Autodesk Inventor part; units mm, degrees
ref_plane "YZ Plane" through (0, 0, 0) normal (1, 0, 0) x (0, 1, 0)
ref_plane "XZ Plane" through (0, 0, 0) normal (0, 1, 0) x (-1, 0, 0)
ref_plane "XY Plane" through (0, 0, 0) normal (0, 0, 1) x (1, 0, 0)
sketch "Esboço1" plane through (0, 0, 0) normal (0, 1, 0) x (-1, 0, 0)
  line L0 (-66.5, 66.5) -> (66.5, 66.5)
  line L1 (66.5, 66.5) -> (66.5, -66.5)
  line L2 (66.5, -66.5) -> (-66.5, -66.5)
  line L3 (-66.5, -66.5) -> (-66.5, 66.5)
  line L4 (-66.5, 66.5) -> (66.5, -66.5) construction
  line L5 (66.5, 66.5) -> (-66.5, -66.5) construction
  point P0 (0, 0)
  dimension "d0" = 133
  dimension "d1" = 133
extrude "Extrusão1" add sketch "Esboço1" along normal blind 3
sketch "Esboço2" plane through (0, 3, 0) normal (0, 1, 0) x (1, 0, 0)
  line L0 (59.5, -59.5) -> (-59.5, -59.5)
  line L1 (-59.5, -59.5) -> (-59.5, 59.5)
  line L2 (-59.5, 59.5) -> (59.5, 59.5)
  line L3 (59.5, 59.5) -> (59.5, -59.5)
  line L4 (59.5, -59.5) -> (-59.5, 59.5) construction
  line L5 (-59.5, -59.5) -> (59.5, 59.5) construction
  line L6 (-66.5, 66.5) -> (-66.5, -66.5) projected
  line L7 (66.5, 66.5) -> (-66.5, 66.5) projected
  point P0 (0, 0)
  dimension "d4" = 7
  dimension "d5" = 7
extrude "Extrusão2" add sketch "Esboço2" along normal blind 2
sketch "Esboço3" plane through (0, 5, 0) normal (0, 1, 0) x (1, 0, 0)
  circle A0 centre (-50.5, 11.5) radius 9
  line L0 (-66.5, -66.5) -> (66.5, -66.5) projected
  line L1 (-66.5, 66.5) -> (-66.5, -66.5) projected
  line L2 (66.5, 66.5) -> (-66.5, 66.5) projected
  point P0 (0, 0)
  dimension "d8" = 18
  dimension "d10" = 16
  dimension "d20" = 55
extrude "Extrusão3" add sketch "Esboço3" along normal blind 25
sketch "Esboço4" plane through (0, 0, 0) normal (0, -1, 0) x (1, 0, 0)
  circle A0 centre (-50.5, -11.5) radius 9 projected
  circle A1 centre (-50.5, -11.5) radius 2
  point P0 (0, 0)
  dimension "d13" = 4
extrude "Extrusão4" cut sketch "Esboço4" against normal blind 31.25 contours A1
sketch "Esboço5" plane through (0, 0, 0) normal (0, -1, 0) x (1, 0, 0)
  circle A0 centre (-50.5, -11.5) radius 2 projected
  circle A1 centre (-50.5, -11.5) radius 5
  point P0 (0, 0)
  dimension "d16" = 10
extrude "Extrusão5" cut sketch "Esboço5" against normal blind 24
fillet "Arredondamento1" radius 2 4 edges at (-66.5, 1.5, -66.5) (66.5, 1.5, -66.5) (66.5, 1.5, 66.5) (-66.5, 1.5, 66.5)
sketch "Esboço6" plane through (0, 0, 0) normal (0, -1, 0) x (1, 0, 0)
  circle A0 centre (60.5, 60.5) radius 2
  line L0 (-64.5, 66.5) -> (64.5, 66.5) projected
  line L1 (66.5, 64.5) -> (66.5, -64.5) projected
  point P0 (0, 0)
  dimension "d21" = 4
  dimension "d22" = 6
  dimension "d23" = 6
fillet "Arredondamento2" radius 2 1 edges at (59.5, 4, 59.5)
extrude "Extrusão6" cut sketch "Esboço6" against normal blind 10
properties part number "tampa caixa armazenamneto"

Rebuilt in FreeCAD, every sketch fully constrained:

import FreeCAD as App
import Part
import Sketcher


def edges_at(feature, points):
    """Names of the edges that pass closest to the given points."""
    edges = feature.Shape.Edges
    near = lambda p: min(range(len(edges)), key=lambda i: edges[i].distToShape(Part.Vertex(*p))[0])
    return sorted({f"Edge{near(p) + 1}" for p in points})


def add_polygon(sketch, points):
    """Adds a closed chain of lines whose ends are joined by coincident constraints."""
    first, n = sketch.GeometryCount, len(points)
    for a, b in zip(points, points[1:] + points[:1]):
        sketch.addGeometry(Part.LineSegment(App.Vector(*a, 0), App.Vector(*b, 0)), False)
    for i in range(n):
        sketch.addConstraint(Sketcher.Constraint("Coincident", first + i, 2, first + (i + 1) % n, 1))

doc = App.newDocument("Part")
body = doc.addObject("PartDesign::Body", "Body")

# Sketch on XZ plane
sketch1 = body.newObject("Sketcher::SketchObject", "Sketch")
sketch1.AttachmentSupport = (doc.getObject("XZ_Plane"), [""])
sketch1.MapMode = "FlatFace"
add_polygon(sketch1, [(-66, 66), (66, 66), (66, -66), (-66, -66)])  # lines 0-3
sketch1.addConstraint(Sketcher.Constraint("Horizontal", 0))
sketch1.addConstraint(Sketcher.Constraint("Vertical", 1))
sketch1.addConstraint(Sketcher.Constraint("Horizontal", 2))
sketch1.addConstraint(Sketcher.Constraint("Vertical", 3))
sketch1.addConstraint(Sketcher.Constraint("Symmetric", 0, 2, 2, 2, -1, 1))
sketch1.addConstraint(Sketcher.Constraint("Equal", 2, 1))
sketch1.addConstraint(Sketcher.Constraint("DistanceX", 0, 1, 0, 2, 133.0))
pad1 = body.newObject("PartDesign::Pad", "Pad")
pad1.Profile = sketch1
pad1.Length = 3
pad1.Reversed = True

# Sketch on XZ plane
sketch2 = body.newObject("Sketcher::SketchObject", "Sketch001")
sketch2.AttachmentSupport = (doc.getObject("XZ_Plane"), [""])
sketch2.MapMode = "FlatFace"
sketch2.AttachmentOffset = App.Placement(App.Vector(0, 0, -3), App.Rotation())
add_polygon(sketch2, [(-60, 60), (60, 60), (60, -60), (-60, -60)])  # lines 0-3
sketch2.addConstraint(Sketcher.Constraint("Horizontal", 0))
sketch2.addConstraint(Sketcher.Constraint("Vertical", 1))
sketch2.addConstraint(Sketcher.Constraint("Horizontal", 2))
sketch2.addConstraint(Sketcher.Constraint("Vertical", 3))
sketch2.addConstraint(Sketcher.Constraint("Symmetric", 0, 2, 2, 2, -1, 1))
sketch2.addConstraint(Sketcher.Constraint("Equal", 2, 1))
sketch2.addConstraint(Sketcher.Constraint("DistanceX", 0, 1, 0, 2, 119.0))
pad2 = body.newObject("PartDesign::Pad", "Pad001")
pad2.Profile = sketch2
pad2.Length = 2
pad2.Reversed = True

# Sketch on XZ plane
sketch3 = body.newObject("Sketcher::SketchObject", "Sketch002")
sketch3.AttachmentSupport = (doc.getObject("XZ_Plane"), [""])
sketch3.MapMode = "FlatFace"
sketch3.AttachmentOffset = App.Placement(App.Vector(0, 0, -5), App.Rotation())
sketch3.addGeometry(Part.Circle(App.Vector(-50, -12, 0), App.Vector(0, 0, 1), 9), False)
sketch3.addConstraint(Sketcher.Constraint("Diameter", 0, 18.0))
sketch3.addConstraint(Sketcher.Constraint("DistanceX", 0, 3, -1, 1, 50.5))
sketch3.addConstraint(Sketcher.Constraint("DistanceY", 0, 3, -1, 1, 11.5))
pad3 = body.newObject("PartDesign::Pad", "Pad002")
pad3.Profile = sketch3
pad3.Length = 25
pad3.Reversed = True

# Sketch on XZ plane
sketch4 = body.newObject("Sketcher::SketchObject", "Sketch003")
sketch4.AttachmentSupport = (doc.getObject("XZ_Plane"), [""])
sketch4.MapMode = "FlatFace"
sketch4.addGeometry(Part.Circle(App.Vector(-50.5, -11.5, 0), App.Vector(0, 0, 1), 2), False)
sketch4.addConstraint(Sketcher.Constraint("Diameter", 0, 4.0))
sketch4.addConstraint(Sketcher.Constraint("DistanceX", 0, 3, -1, 1, 50.5))
sketch4.addConstraint(Sketcher.Constraint("DistanceY", 0, 3, -1, 1, 11.5))
pocket1 = body.newObject("PartDesign::Pocket", "Pocket")
pocket1.Profile = sketch4
pocket1.Length = 31.25

# Sketch on XZ plane
sketch5 = body.newObject("Sketcher::SketchObject", "Sketch004")
sketch5.AttachmentSupport = (doc.getObject("XZ_Plane"), [""])
sketch5.MapMode = "FlatFace"
sketch5.addGeometry(Part.Circle(App.Vector(-50.5, -11.5, 0), App.Vector(0, 0, 1), 5), False)
sketch5.addGeometry(Part.Circle(App.Vector(-50.5, -11.5, 0), App.Vector(0, 0, 1), 2), False)
sketch5.addConstraint(Sketcher.Constraint("Coincident", 1, 3, 0, 3))
sketch5.addConstraint(Sketcher.Constraint("Diameter", 0, 10.0))
sketch5.addConstraint(Sketcher.Constraint("Diameter", 1, 4.0))
sketch5.addConstraint(Sketcher.Constraint("DistanceX", 0, 3, -1, 1, 50.5))
sketch5.addConstraint(Sketcher.Constraint("DistanceY", 0, 3, -1, 1, 11.5))
pocket2 = body.newObject("PartDesign::Pocket", "Pocket001")
pocket2.Profile = sketch5
pocket2.Length = 24
doc.recompute()

fillet = body.newObject("PartDesign::Fillet", "Fillet")
fillet.Base = (pocket2, edges_at(pocket2, [
    (-66.5, 1.5, -66.5),
    (66.5, 1.5, -66.5),
    (66.5, 1.5, 66.5),
    (-66.5, 1.5, 66.5),
]))
fillet.Radius = 2
doc.recompute()

fillet2 = body.newObject("PartDesign::Fillet", "Fillet001")
fillet2.Base = (fillet, edges_at(fillet, [(59.5, 4, 59.5)]))
fillet2.Radius = 2

# Sketch on XZ plane
sketch6 = body.newObject("Sketcher::SketchObject", "Sketch005")
sketch6.AttachmentSupport = (doc.getObject("XZ_Plane"), [""])
sketch6.MapMode = "FlatFace"
sketch6.addGeometry(Part.Circle(App.Vector(60.5, 60.5, 0), App.Vector(0, 0, 1), 2), False)
sketch6.addConstraint(Sketcher.Constraint("Diameter", 0, 4.0))
sketch6.addConstraint(Sketcher.Constraint("DistanceX", -1, 1, 0, 3, 60.5))
sketch6.addConstraint(Sketcher.Constraint("DistanceY", -1, 1, 0, 3, 60.5))
pocket3 = body.newObject("PartDesign::Pocket", "Pocket002")
pocket3.Profile = sketch6
pocket3.Length = 10

doc.recompute()
